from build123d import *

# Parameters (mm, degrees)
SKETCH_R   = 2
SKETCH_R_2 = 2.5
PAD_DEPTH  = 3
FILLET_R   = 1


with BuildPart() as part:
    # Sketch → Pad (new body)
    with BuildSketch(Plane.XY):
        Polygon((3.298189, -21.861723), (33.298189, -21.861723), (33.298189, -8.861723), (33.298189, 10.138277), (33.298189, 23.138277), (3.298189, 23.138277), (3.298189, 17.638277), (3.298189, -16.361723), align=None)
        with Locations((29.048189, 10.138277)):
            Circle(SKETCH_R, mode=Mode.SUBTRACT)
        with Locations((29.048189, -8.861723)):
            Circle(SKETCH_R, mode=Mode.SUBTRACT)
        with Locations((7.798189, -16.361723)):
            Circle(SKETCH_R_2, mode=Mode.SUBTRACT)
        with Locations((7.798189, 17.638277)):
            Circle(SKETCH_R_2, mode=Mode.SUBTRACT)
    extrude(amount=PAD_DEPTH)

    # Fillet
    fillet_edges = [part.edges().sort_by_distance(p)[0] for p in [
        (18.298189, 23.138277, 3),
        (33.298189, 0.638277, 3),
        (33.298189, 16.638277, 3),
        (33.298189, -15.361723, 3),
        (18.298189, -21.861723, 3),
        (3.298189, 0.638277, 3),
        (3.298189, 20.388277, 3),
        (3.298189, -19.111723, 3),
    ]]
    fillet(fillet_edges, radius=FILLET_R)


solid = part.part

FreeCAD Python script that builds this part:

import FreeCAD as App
import Part
import Sketcher
from FreeCAD import Vector


def edges_at(feature, points):
    """Names of the edges that pass closest to the given points."""
    edges = feature.Shape.Edges
    near = lambda p: min(range(len(edges)), key=lambda i: edges[i].distToShape(Part.Vertex(*p))[0])
    return sorted({f"Edge{near(p) + 1}" for p in points})

doc = App.newDocument("Part")
body = doc.addObject("PartDesign::Body", "Body")

# Sketch on XY plane
sketch1 = body.newObject("Sketcher::SketchObject", "Sketch")
sketch1.AttachmentSupport = (doc.getObject("XY_Plane"), [""])
sketch1.MapMode = "FlatFace"
sketch1.addGeometry([
    Part.LineSegment(Vector(3.3, -21.9, 0), Vector(33.3, -21.9, 0)),  # 0
    Part.LineSegment(Vector(33.3, -21.9, 0), Vector(33.3, 23.1, 0)),  # 1
    Part.LineSegment(Vector(33.3, 23.1, 0), Vector(3.3, 23.1, 0)),  # 2
    Part.LineSegment(Vector(3.3, 23.1, 0), Vector(3.3, -21.9, 0)),  # 3
    Part.Circle(Vector(7.8, -16.4, 0), Vector(0, 0, 1), 2.5),  # 4
    Part.Circle(Vector(29, -8.9, 0), Vector(0, 0, 1), 2),  # 5
    Part.Circle(Vector(7.8, 17.6, 0), Vector(0, 0, 1), 2.5),  # 6
    Part.Circle(Vector(29, 10.1, 0), Vector(0, 0, 1), 2),  # 7
], False)
sketch1.addConstraint([
    Sketcher.Constraint("Coincident", 0, 2, 1, 1),
    Sketcher.Constraint("Coincident", 1, 2, 2, 1),
    Sketcher.Constraint("Coincident", 2, 2, 3, 1),
    Sketcher.Constraint("Coincident", 3, 2, 0, 1),
    Sketcher.Constraint("Horizontal", 0),
    Sketcher.Constraint("Vertical", 1),
    Sketcher.Constraint("Horizontal", 2),
    Sketcher.Constraint("Vertical", 3),
    Sketcher.Constraint("Equal", 4, 6),
    Sketcher.Constraint("Equal", 5, 7),
    Sketcher.Constraint("Vertical", 4, 3, 6, 3),
    Sketcher.Constraint("Vertical", 5, 3, 7, 3),
    Sketcher.Constraint("Diameter", 4, 5.0),
    Sketcher.Constraint("Diameter", 5, 4.0),
    Sketcher.Constraint("DistanceX", 0, 1, 0, 2, 30.0),
    Sketcher.Constraint("DistanceY", 1, 1, 1, 2, 45.0),
    Sketcher.Constraint("DistanceY", 4, 3, 6, 3, 34.0),
    Sketcher.Constraint("DistanceY", 5, 3, 7, 3, 19.0),
    Sketcher.Constraint("DistanceY", 0, 2, 5, 3, 13.0),
    Sketcher.Constraint("DistanceY", 4, 3, 5, 3, 7.5),
    Sketcher.Constraint("DistanceX", 4, 3, 0, 2, 25.5),
    Sketcher.Constraint("DistanceX", 4, 3, 5, 3, 21.25),
    Sketcher.Constraint("DistanceX", -1, 1, 4, 3, 7.798189),
    Sketcher.Constraint("DistanceY", 4, 3, -1, 1, 16.361723),
])
pad1 = body.newObject("PartDesign::Pad", "Pad")
pad1.Profile = sketch1
pad1.Length = 3
doc.recompute()

fillet = body.newObject("PartDesign::Fillet", "Fillet")
fillet.Base = (pad1, edges_at(pad1, [
    (18.298, 23.138, 3),
    (33.298, 0.638, 3),
    (33.298, 0.638, 3),
    (33.298, 0.638, 3),
    (18.298, -21.862, 3),
    (3.298, 0.638, 3),
    (3.298, 0.638, 3),
    (3.298, 0.638, 3),
]))
fillet.Radius = 1

doc.recompute()
